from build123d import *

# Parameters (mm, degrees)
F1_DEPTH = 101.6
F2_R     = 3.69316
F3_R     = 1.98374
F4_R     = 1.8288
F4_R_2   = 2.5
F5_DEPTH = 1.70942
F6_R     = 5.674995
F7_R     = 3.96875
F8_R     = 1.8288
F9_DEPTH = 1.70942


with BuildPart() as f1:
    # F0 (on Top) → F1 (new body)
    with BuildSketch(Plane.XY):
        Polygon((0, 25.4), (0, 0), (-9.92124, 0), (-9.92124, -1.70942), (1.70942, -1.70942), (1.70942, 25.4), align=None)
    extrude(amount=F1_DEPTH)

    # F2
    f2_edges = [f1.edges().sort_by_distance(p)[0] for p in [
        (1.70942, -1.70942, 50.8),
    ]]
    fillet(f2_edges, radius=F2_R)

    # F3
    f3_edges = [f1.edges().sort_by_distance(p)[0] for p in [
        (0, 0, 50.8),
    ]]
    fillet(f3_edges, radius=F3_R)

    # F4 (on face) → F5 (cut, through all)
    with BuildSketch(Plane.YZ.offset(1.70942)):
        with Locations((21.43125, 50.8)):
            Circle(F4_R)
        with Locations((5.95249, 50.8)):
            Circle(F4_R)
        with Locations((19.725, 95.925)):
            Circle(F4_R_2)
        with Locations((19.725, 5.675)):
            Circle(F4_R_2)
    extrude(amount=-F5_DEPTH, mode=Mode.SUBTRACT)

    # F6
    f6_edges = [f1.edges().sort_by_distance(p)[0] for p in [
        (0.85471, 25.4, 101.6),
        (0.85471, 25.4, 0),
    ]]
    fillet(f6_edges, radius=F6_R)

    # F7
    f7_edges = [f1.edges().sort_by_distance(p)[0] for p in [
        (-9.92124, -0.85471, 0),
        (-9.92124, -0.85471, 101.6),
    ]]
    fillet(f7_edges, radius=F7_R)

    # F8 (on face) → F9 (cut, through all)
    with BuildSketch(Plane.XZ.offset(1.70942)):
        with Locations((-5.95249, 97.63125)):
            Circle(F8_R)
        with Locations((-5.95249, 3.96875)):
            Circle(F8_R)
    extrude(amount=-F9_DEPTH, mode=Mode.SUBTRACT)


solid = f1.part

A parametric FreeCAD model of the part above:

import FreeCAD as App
import Part
import Sketcher
from FreeCAD import Vector
Q = App.Units.Quantity


def edges_at(feature, points):
    """Names of the edges that pass closest to the given points."""
    edges = feature.Shape.Edges
    near = lambda p: min(range(len(edges)), key=lambda i: edges[i].distToShape(Part.Vertex(*p))[0])
    return sorted({f"Edge{near(p) + 1}" for p in points})

doc = App.newDocument("Part")
body = doc.addObject("PartDesign::Body", "Body")

# Sketch on XY plane
sketch1 = body.newObject("Sketcher::SketchObject", "Sketch")
sketch1.AttachmentSupport = (doc.getObject("XY_Plane"), [""])
sketch1.MapMode = "FlatFace"
sketch1.addGeometry(Part.LineSegment(Vector(0, 25.4, 0), Vector(0, 0, 0)), False)
sketch1.addGeometry(Part.LineSegment(Vector(0, 0, 0), Vector(-9.9, 0, 0)), False)
sketch1.addGeometry(Part.LineSegment(Vector(-9.9, 0, 0), Vector(-9.9, -1.7, 0)), False)
sketch1.addGeometry(Part.LineSegment(Vector(-9.9, -1.7, 0), Vector(1.7, -1.7, 0)), False)
sketch1.addGeometry(Part.LineSegment(Vector(1.7, -1.7, 0), Vector(1.7, 25.4, 0)), False)
sketch1.addGeometry(Part.LineSegment(Vector(1.7, 25.4, 0), Vector(0, 25.4, 0)), False)
sketch1.addConstraint(Sketcher.Constraint("Coincident", 0, 2, 1, 1))
sketch1.addConstraint(Sketcher.Constraint("Coincident", 1, 2, 2, 1))
sketch1.addConstraint(Sketcher.Constraint("Coincident", 2, 2, 3, 1))
sketch1.addConstraint(Sketcher.Constraint("Coincident", 3, 2, 4, 1))
sketch1.addConstraint(Sketcher.Constraint("Coincident", 4, 2, 5, 1))
sketch1.addConstraint(Sketcher.Constraint("Coincident", 5, 2, 0, 1))
sketch1.addConstraint(Sketcher.Constraint("Vertical", 0))
sketch1.addConstraint(Sketcher.Constraint("Horizontal", 1))
sketch1.addConstraint(Sketcher.Constraint("Vertical", 2))
sketch1.addConstraint(Sketcher.Constraint("Horizontal", 3))
sketch1.addConstraint(Sketcher.Constraint("Vertical", 4))
sketch1.addConstraint(Sketcher.Constraint("Horizontal", 5))
sketch1.addConstraint(Sketcher.Constraint("Coincident", 0, 2, -1, 1))
sketch1.addConstraint(Sketcher.Constraint("Equal", 5, 2))
sketch1.addConstraint(Sketcher.Constraint("DistanceY", 0, 2, 0, 1, Q("1 in")))
sketch1.addConstraint(Sketcher.Constraint("DistanceX", 1, 2, 1, 1, Q("0.3906 in")))
sketch1.addConstraint(Sketcher.Constraint("DistanceX", 3, 1, 3, 2, Q("0.4579 in")))
pad1 = body.newObject("PartDesign::Pad", "Pad")
pad1.Profile = sketch1
pad1.Length = Q("4 in")
doc.recompute()

fillet = body.newObject("PartDesign::Fillet", "Fillet")
fillet.Base = (pad1, edges_at(pad1, [(1.709, -1.709, 50.8)]))
fillet.Radius = Q("0.1454 in")
doc.recompute()

fillet2 = body.newObject("PartDesign::Fillet", "Fillet001")
fillet2.Base = (fillet, edges_at(fillet, [(0, 0, 50.8)]))
fillet2.Radius = Q("0.0781 in")

# Sketch on YZ plane
sketch2 = body.newObject("Sketcher::SketchObject", "Sketch001")
sketch2.AttachmentSupport = (doc.getObject("YZ_Plane"), [""])
sketch2.MapMode = "FlatFace"
sketch2.AttachmentOffset = App.Placement(Vector(0, 0, 0.0673 * 25.4), App.Rotation())
sketch2.addGeometry(Part.Circle(Vector(21.4, 50.8, 0), Vector(0, 0, 1), 1.8), False)
sketch2.addGeometry(Part.Circle(Vector(6, 50.8, 0), Vector(0, 0, 1), 1.8), False)
sketch2.addGeometry(Part.Circle(Vector(19.7, 95.9, 0), Vector(0, 0, 1), 2.5), False)
sketch2.addGeometry(Part.Circle(Vector(19.7, 5.7, 0), Vector(0, 0, 1), 2.5), False)
sketch2.addConstraint(Sketcher.Constraint("Equal", 0, 1))
sketch2.addConstraint(Sketcher.Constraint("Equal", 2, 3))
sketch2.addConstraint(Sketcher.Constraint("Horizontal", 0, 3, 1, 3))
sketch2.addConstraint(Sketcher.Constraint("Vertical", 2, 3, 3, 3))
sketch2.addConstraint(Sketcher.Constraint("Diameter", 0, Q("0.144 in")))
sketch2.addConstraint(Sketcher.Constraint("DistanceY", -1, 1, 0, 3, Q("2 in")))
sketch2.addConstraint(Sketcher.Constraint("Diameter", 2, Q("5 mm")))
sketch2.addConstraint(Sketcher.Constraint("DistanceX", -1, 1, 0, 3, Q("0.84375 in")))
sketch2.addConstraint(Sketcher.Constraint("DistanceX", 1, 3, 0, 3, Q("0.6094 in")))
sketch2.addConstraint(Sketcher.Constraint("DistanceX", -1, 1, 2, 3, Q("19.725 mm")))
sketch2.addConstraint(Sketcher.Constraint("DistanceY", -1, 1, 2, 3, Q("95.925 mm")))
sketch2.addConstraint(Sketcher.Constraint("DistanceY", -1, 1, 3, 3, Q("5.675 mm")))
pocket1 = body.newObject("PartDesign::Pocket", "Pocket")
pocket1.Profile = sketch2
pocket1.Type = "ThroughAll"
doc.recompute()

fillet3 = body.newObject("PartDesign::Fillet", "Fillet002")
fillet3.Base = (pocket1, edges_at(pocket1, [(0.855, 25.4, 101.6), (0.855, 25.4, 0)]))
fillet3.Radius = 5.674995
doc.recompute()

fillet4 = body.newObject("PartDesign::Fillet", "Fillet003")
fillet4.Base = (fillet3, edges_at(fillet3, [(-9.921, -0.855, 0), (-9.921, -0.855, 101.6)]))
fillet4.Radius = Q("0.15625 in")

# Sketch on XZ plane
sketch3 = body.newObject("Sketcher::SketchObject", "Sketch002")
sketch3.AttachmentSupport = (doc.getObject("XZ_Plane"), [""])
sketch3.MapMode = "FlatFace"
sketch3.AttachmentOffset = App.Placement(Vector(0, 0, 0.0673 * 25.4), App.Rotation())
sketch3.addGeometry(Part.Circle(Vector(-6, 97.6, 0), Vector(0, 0, 1), 1.8), False)
sketch3.addGeometry(Part.Circle(Vector(-6, 4, 0), Vector(0, 0, 1), 1.8), False)
sketch3.addConstraint(Sketcher.Constraint("Equal", 0, 1))
sketch3.addConstraint(Sketcher.Constraint("Vertical", 0, 3, 1, 3))
sketch3.addConstraint(Sketcher.Constraint("Diameter", 0, Q("0.144 in")))
sketch3.addConstraint(Sketcher.Constraint("DistanceY", -1, 1, 0, 3, Q("3.84375 in")))
sketch3.addConstraint(Sketcher.Constraint("DistanceY", -1, 1, 1, 3, Q("0.15625 in")))
sketch3.addConstraint(Sketcher.Constraint("DistanceX", 0, 3, -1, 1, Q("5.95249 mm")))
pocket2 = body.newObject("PartDesign::Pocket", "Pocket001")
pocket2.Profile = sketch3
pocket2.Type = "ThroughAll"

doc.recompute()
